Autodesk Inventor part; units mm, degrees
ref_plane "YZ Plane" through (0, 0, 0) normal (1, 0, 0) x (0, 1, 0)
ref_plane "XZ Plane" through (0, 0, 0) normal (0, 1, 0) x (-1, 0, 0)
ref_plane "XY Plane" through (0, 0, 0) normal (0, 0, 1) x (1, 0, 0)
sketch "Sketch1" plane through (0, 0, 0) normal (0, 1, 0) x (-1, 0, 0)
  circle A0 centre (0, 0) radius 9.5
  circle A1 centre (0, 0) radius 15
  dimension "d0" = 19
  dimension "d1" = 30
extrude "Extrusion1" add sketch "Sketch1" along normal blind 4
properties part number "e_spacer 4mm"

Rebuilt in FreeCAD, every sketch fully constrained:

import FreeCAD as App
import Part
import Sketcher

V = App.Vector

doc = App.newDocument("Part")
body = doc.addObject("PartDesign::Body", "Body")

# Sketch on XZ plane
sketch1 = body.newObject("Sketcher::SketchObject", "Sketch")
sketch1.AttachmentSupport = (doc.getObject("XZ_Plane"), [""])
sketch1.MapMode = "FlatFace"
sketch1.addGeometry([
    Part.Circle(V(0, 0, 0), V(0, 0, 1), 15),
    Part.Circle(V(0, 0, 0), V(0, 0, 1), 10),
], False)
sketch1.addConstraint([
    Sketcher.Constraint("Coincident", 0, 3, -1, 1),
    Sketcher.Constraint("Coincident", 1, 3, -1, 1),
    Sketcher.Constraint("Diameter", 0, 30.0),
    Sketcher.Constraint("Diameter", 1, 19.0),
])
pad1 = body.newObject("PartDesign::Pad", "Pad")
pad1.Profile = sketch1
pad1.Length = 4
pad1.Reversed = True

doc.recompute()
